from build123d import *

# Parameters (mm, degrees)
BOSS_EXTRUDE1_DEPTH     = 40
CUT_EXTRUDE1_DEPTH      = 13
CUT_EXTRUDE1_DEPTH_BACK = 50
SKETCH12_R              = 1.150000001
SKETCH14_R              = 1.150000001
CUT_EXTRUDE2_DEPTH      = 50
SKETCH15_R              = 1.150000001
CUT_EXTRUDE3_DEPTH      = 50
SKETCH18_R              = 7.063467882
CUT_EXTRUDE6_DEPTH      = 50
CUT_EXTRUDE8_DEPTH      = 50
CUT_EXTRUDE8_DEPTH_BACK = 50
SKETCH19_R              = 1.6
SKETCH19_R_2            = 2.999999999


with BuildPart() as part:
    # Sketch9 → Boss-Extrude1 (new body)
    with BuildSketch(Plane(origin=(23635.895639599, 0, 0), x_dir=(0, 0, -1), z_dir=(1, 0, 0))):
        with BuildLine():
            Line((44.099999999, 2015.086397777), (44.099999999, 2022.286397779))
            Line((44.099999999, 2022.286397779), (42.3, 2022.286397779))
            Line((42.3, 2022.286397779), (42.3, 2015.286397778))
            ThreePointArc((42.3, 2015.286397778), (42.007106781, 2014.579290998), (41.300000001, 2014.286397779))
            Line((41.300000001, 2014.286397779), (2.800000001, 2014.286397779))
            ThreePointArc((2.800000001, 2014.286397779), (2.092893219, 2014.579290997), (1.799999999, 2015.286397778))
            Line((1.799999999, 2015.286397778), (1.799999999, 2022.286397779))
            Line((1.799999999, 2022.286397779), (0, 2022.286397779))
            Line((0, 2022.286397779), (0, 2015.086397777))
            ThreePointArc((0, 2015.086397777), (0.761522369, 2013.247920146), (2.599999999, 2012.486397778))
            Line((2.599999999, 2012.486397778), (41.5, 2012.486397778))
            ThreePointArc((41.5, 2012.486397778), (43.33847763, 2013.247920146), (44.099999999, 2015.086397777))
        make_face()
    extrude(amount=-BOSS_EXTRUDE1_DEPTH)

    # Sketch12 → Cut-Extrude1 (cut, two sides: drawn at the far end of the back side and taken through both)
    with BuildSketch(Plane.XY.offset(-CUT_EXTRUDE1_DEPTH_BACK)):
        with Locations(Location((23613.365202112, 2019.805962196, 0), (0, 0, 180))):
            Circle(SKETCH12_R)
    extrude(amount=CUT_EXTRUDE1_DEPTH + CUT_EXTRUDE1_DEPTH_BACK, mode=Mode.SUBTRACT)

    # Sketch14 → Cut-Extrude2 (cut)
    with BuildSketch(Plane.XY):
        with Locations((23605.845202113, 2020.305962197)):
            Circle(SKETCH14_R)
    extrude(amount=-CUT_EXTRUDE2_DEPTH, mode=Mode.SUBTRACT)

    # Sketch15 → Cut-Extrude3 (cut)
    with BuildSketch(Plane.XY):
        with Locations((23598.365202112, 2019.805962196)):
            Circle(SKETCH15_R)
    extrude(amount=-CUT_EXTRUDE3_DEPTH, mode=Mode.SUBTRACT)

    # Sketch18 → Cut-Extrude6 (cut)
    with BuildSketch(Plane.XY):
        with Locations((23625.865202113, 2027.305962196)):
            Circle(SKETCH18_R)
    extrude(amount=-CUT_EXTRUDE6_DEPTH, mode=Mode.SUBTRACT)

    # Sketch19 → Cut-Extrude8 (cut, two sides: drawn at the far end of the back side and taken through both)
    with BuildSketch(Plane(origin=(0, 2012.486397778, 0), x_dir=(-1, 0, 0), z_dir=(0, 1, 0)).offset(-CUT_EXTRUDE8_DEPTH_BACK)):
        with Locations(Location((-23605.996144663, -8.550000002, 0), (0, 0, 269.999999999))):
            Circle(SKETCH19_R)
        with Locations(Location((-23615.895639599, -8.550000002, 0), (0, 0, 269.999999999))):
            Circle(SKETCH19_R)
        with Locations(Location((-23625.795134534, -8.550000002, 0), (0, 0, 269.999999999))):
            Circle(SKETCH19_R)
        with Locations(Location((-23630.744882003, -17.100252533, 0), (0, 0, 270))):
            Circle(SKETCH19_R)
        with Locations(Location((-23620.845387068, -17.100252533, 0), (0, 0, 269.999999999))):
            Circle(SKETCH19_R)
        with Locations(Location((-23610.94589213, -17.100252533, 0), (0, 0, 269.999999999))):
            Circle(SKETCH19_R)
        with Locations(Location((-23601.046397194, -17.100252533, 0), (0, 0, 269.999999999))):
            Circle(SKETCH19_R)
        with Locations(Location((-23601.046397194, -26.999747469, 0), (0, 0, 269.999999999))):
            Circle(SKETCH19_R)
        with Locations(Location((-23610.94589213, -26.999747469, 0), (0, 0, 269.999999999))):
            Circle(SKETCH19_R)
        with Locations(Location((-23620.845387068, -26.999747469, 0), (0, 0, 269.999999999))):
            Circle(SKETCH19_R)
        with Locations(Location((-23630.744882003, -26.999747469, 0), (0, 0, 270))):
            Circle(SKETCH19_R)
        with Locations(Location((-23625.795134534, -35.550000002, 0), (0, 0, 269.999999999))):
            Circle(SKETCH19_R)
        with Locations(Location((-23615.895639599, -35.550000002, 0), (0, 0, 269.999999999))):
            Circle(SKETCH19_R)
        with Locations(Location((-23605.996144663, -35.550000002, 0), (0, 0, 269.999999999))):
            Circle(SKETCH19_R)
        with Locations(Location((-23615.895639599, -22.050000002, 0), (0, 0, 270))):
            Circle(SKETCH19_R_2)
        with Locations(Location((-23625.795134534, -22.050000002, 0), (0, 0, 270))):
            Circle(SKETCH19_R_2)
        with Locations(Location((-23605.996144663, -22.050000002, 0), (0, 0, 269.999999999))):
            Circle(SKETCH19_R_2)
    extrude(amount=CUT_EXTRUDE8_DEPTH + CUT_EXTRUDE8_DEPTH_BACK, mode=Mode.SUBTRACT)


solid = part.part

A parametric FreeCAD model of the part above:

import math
import FreeCAD as App
import Part
import Sketcher
from FreeCAD import Vector
Q = App.Units.Quantity

doc = App.newDocument("Part")
body = doc.addObject("PartDesign::Body", "Body")

# Sketch on YZ plane
sketch1 = doc.addObject("Sketcher::SketchObject", "Sketch")
body.addObject(sketch1)
sketch1.AttachmentSupport = (doc.YZ_Plane, [""])
sketch1.MapMode = "FlatFace"
sketch1.AttachmentOffset = App.Placement(Vector(0, 0, 23635.89564), App.Rotation())
sketch1.addGeometry([
    Part.LineSegment(Vector(2015.1, -44.1, 0), Vector(2022.3, -44.1, 0)),  # 0
    Part.LineSegment(Vector(2022.3, -44.1, 0), Vector(2022.3, -42.3, 0)),  # 1
    Part.LineSegment(Vector(2022.3, -42.3, 0), Vector(2015.3, -42.3, 0)),  # 2
    Part.ArcOfCircle(Part.Circle(Vector(2015.3, -41.3, 0), Vector(0, 0, 1), 1), math.radians(-180), math.radians(-90)),  # 3
    Part.LineSegment(Vector(2014.3, -41.3, 0), Vector(2014.3, -2.8, 0)),  # 4
    Part.ArcOfCircle(Part.Circle(Vector(2015.3, -2.8, 0), Vector(0, 0, 1), 1), math.radians(90), math.radians(180)),  # 5
    Part.LineSegment(Vector(2015.3, -1.8, 0), Vector(2022.3, -1.8, 0)),  # 6
    Part.LineSegment(Vector(2022.3, -1.8, 0), Vector(2022.3, 0, 0)),  # 7
    Part.LineSegment(Vector(2022.3, 0, 0), Vector(2015.1, 0, 0)),  # 8
    Part.ArcOfCircle(Part.Circle(Vector(2015.1, -2.6, 0), Vector(0, 0, 1), 2.6), math.radians(90), math.radians(180)),  # 9
    Part.LineSegment(Vector(2012.5, -2.6, 0), Vector(2012.5, -41.5, 0)),  # 10
    Part.ArcOfCircle(Part.Circle(Vector(2015.1, -41.5, 0), Vector(0, 0, 1), 2.6), math.radians(180), math.radians(270)),  # 11
], False)
sketch1.addConstraint([
    Sketcher.Constraint("Coincident", 0, 2, 1, 1),
    Sketcher.Constraint("Coincident", 1, 2, 2, 1),
    Sketcher.Constraint("Tangent", 2, 2, 3, 2),
    Sketcher.Constraint("Tangent", 3, 1, 4, 1),
    Sketcher.Constraint("Tangent", 4, 2, 5, 2),
    Sketcher.Constraint("Tangent", 5, 1, 6, 1),
    Sketcher.Constraint("Coincident", 6, 2, 7, 1),
    Sketcher.Constraint("Coincident", 7, 2, 8, 1),
    Sketcher.Constraint("Tangent", 8, 2, 9, 1),
    Sketcher.Constraint("Tangent", 9, 2, 10, 1),
    Sketcher.Constraint("Tangent", 10, 2, 11, 1),
    Sketcher.Constraint("Tangent", 11, 2, 0, 1),
    Sketcher.Constraint("Horizontal", 0),
    Sketcher.Constraint("Vertical", 1),
    Sketcher.Constraint("Horizontal", 2),
    Sketcher.Constraint("Vertical", 4),
    Sketcher.Constraint("Horizontal", 6),
    Sketcher.Constraint("Vertical", 7),
    Sketcher.Constraint("Horizontal", 8),
    Sketcher.Constraint("Vertical", 10),
    Sketcher.Constraint("Equal", 3, 5),
    Sketcher.Constraint("Equal", 9, 11),
    Sketcher.Constraint("PointOnObject", 7, 2, -1),
    Sketcher.Constraint("Vertical", 1, 2, 6, 2),
    Sketcher.Constraint("Equal", 1, 7),
    Sketcher.Constraint("Radius", 3, Q("1 mm")),
    Sketcher.Constraint("Radius", 9, Q("2.6 mm")),
    Sketcher.Constraint("DistanceX", 2, 2, 2, 1, Q("7 mm")),
    Sketcher.Constraint("DistanceX", 0, 1, 0, 2, Q("7.2 mm")),
    Sketcher.Constraint("DistanceY", 1, 1, 1, 2, Q("1.8 mm")),
    Sketcher.Constraint("DistanceY", 4, 1, 4, 2, Q("38.5 mm")),
    Sketcher.Constraint("DistanceX", -1, 1, 3, 3, Q("2015.286398 mm")),
])
pad1 = doc.addObject("PartDesign::Pad", "Pad")
body.addObject(pad1)
pad1.Profile = sketch1
pad1.Length = 40
pad1.Reversed = True

# Sketch on XY plane
sketch2 = doc.addObject("Sketcher::SketchObject", "Sketch001")
body.addObject(sketch2)
sketch2.AttachmentSupport = (doc.XY_Plane, [""])
sketch2.MapMode = "FlatFace"
sketch2.addGeometry(Part.Circle(Vector(23613.4, 2019.8, 0), Vector(0, 0, 1), 1.2), False)
sketch2.addConstraint([
    Sketcher.Constraint("Diameter", 0, Q("2.3 mm")),
    Sketcher.Constraint("DistanceX", -1, 1, 0, 3, Q("23613.365202 mm")),
    Sketcher.Constraint("DistanceY", -1, 1, 0, 3, Q("2019.805962 mm")),
])
pocket1 = doc.addObject("PartDesign::Pocket", "Pocket")
body.addObject(pocket1)
pocket1.Profile = sketch2
pocket1.Type = "ThroughAll"
pocket1.Midplane = True

# Sketch on XY plane
sketch3 = doc.addObject("Sketcher::SketchObject", "Sketch002")
body.addObject(sketch3)
sketch3.AttachmentSupport = (doc.XY_Plane, [""])
sketch3.MapMode = "FlatFace"
sketch3.addGeometry(Part.Circle(Vector(23605.8, 2020.3, 0), Vector(0, 0, 1), 1.2), False)
sketch3.addConstraint([
    Sketcher.Constraint("Diameter", 0, Q("2.3 mm")),
    Sketcher.Constraint("DistanceX", -1, 1, 0, 3, Q("23605.845202 mm")),
    Sketcher.Constraint("DistanceY", -1, 1, 0, 3, Q("2020.305962 mm")),
])
pocket2 = doc.addObject("PartDesign::Pocket", "Pocket001")
body.addObject(pocket2)
pocket2.Profile = sketch3
pocket2.Length = 50

# Sketch on XY plane
sketch4 = doc.addObject("Sketcher::SketchObject", "Sketch003")
body.addObject(sketch4)
sketch4.AttachmentSupport = (doc.XY_Plane, [""])
sketch4.MapMode = "FlatFace"
sketch4.addGeometry(Part.Circle(Vector(23598.4, 2019.8, 0), Vector(0, 0, 1), 1.2), False)
sketch4.addConstraint([
    Sketcher.Constraint("Diameter", 0, Q("2.3 mm")),
    Sketcher.Constraint("DistanceX", -1, 1, 0, 3, Q("23598.365202 mm")),
    Sketcher.Constraint("DistanceY", -1, 1, 0, 3, Q("2019.805962 mm")),
])
pocket3 = doc.addObject("PartDesign::Pocket", "Pocket002")
body.addObject(pocket3)
pocket3.Profile = sketch4
pocket3.Length = 50

# Sketch on XY plane
sketch5 = doc.addObject("Sketcher::SketchObject", "Sketch004")
body.addObject(sketch5)
sketch5.AttachmentSupport = (doc.XY_Plane, [""])
sketch5.MapMode = "FlatFace"
sketch5.addGeometry(Part.Circle(Vector(23626, 2027, 0), Vector(0, 0, 1), 7), False)
sketch5.addConstraint([
    Sketcher.Constraint("Diameter", 0, Q("14.126936 mm")),
    Sketcher.Constraint("DistanceX", -1, 1, 0, 3, Q("23625.865202 mm")),
    Sketcher.Constraint("DistanceY", -1, 1, 0, 3, Q("2027.305962 mm")),
])
pocket4 = doc.addObject("PartDesign::Pocket", "Pocket003")
body.addObject(pocket4)
pocket4.Profile = sketch5
pocket4.Length = 50

# Sketch on XZ plane
sketch6 = doc.addObject("Sketcher::SketchObject", "Sketch005")
body.addObject(sketch6)
sketch6.AttachmentSupport = (doc.XZ_Plane, [""])
sketch6.MapMode = "FlatFace"
sketch6.AttachmentOffset = App.Placement(Vector(0, 0, -2012.486398), App.Rotation())
sketch6.addGeometry([
    Part.Circle(Vector(23606, -8.6, 0), Vector(0, 0, 1), 1.6),  # 0
    Part.Circle(Vector(23615.9, -8.6, 0), Vector(0, 0, 1), 1.6),  # 1
    Part.Circle(Vector(23625.8, -8.6, 0), Vector(0, 0, 1), 1.6),  # 2
    Part.Circle(Vector(23630.7, -17.1, 0), Vector(0, 0, 1), 1.6),  # 3
    Part.Circle(Vector(23620.8, -17.1, 0), Vector(0, 0, 1), 1.6),  # 4
    Part.Circle(Vector(23610.9, -17.1, 0), Vector(0, 0, 1), 1.6),  # 5
    Part.Circle(Vector(23601, -17.1, 0), Vector(0, 0, 1), 1.6),  # 6
    Part.Circle(Vector(23601, -27, 0), Vector(0, 0, 1), 1.6),  # 7
    Part.Circle(Vector(23610.9, -27, 0), Vector(0, 0, 1), 1.6),  # 8
    Part.Circle(Vector(23620.8, -27, 0), Vector(0, 0, 1), 1.6),  # 9
    Part.Circle(Vector(23630.7, -27, 0), Vector(0, 0, 1), 1.6),  # 10
    Part.Circle(Vector(23625.8, -35.6, 0), Vector(0, 0, 1), 1.6),  # 11
    Part.Circle(Vector(23615.9, -35.6, 0), Vector(0, 0, 1), 1.6),  # 12
    Part.Circle(Vector(23606, -35.6, 0), Vector(0, 0, 1), 1.6),  # 13
    Part.Circle(Vector(23615.9, -22.1, 0), Vector(0, 0, 1), 3),  # 14
    Part.Circle(Vector(23625.8, -22.1, 0), Vector(0, 0, 1), 3),  # 15
    Part.Circle(Vector(23606, -22.1, 0), Vector(0, 0, 1), 3),  # 16
], False)
sketch6.addConstraint([
    Sketcher.Constraint("Equal", 0, 1),
    Sketcher.Constraint("Equal", 1, 2),
    Sketcher.Constraint("Equal", 2, 3),
    Sketcher.Constraint("Equal", 3, 4),
    Sketcher.Constraint("Equal", 4, 5),
    Sketcher.Constraint("Equal", 5, 6),
    Sketcher.Constraint("Equal", 6, 7),
    Sketcher.Constraint("Equal", 7, 8),
    Sketcher.Constraint("Equal", 8, 9),
    Sketcher.Constraint("Equal", 9, 10),
    Sketcher.Constraint("Equal", 10, 11),
    Sketcher.Constraint("Equal", 11, 12),
    Sketcher.Constraint("Equal", 12, 13),
    Sketcher.Constraint("Equal", 14, 15),
    Sketcher.Constraint("Equal", 15, 16),
    Sketcher.Constraint("Horizontal", 0, 3, 1, 3),
    Sketcher.Constraint("Horizontal", 1, 3, 2, 3),
    Sketcher.Constraint("Horizontal", 3, 3, 4, 3),
    Sketcher.Constraint("Horizontal", 4, 3, 5, 3),
    Sketcher.Constraint("Horizontal", 5, 3, 6, 3),
    Sketcher.Constraint("Horizontal", 7, 3, 8, 3),
    Sketcher.Constraint("Horizontal", 8, 3, 9, 3),
    Sketcher.Constraint("Horizontal", 9, 3, 10, 3),
    Sketcher.Constraint("Horizontal", 11, 3, 12, 3),
    Sketcher.Constraint("Horizontal", 12, 3, 13, 3),
    Sketcher.Constraint("Horizontal", 14, 3, 15, 3),
    Sketcher.Constraint("Horizontal", 15, 3, 16, 3),
    Sketcher.Constraint("Vertical", 6, 3, 7, 3),
    Sketcher.Constraint("Vertical", 5, 3, 8, 3),
    Sketcher.Constraint("Vertical", 4, 3, 9, 3),
    Sketcher.Constraint("Vertical", 3, 3, 10, 3),
    Sketcher.Constraint("Vertical", 2, 3, 11, 3),
    Sketcher.Constraint("Vertical", 1, 3, 12, 3),
    Sketcher.Constraint("Vertical", 0, 3, 13, 3),
    Sketcher.Constraint("Vertical", 12, 3, 14, 3),
    Sketcher.Constraint("Vertical", 11, 3, 15, 3),
    Sketcher.Constraint("Vertical", 13, 3, 16, 3),
    Sketcher.Constraint("Diameter", 14, Q("6 mm")),
    Sketcher.Constraint("Diameter", 0, Q("3.2 mm")),
    Sketcher.Constraint("DistanceY", 12, 3, 14, 3, Q("13.5 mm")),
    Sketcher.Constraint("DistanceY", 0, 3, -1, 1, Q("8.55 mm")),
    Sketcher.Constraint("DistanceY", 11, 3, -1, 1, Q("35.55 mm")),
    Sketcher.Constraint("DistanceX", -1, 1, 1, 3, Q("23615.89564 mm")),
    Sketcher.Constraint("DistanceX", 0, 3, 2, 3, Q("19.79899 mm")),
    Sketcher.Constraint("DistanceX", 5, 3, 3, 3, Q("19.79899 mm")),
    Sketcher.Constraint("DistanceX", 6, 3, 4, 3, Q("19.79899 mm")),
    Sketcher.Constraint("DistanceX", -1, 1, 0, 3, Q("23605.996145 mm")),
    Sketcher.Constraint("DistanceX", -1, 1, 3, 3, Q("23630.744882 mm")),
    Sketcher.Constraint("DistanceY", 3, 3, -1, 1, Q("17.100253 mm")),
    Sketcher.Constraint("DistanceX", -1, 1, 4, 3, Q("23620.845387 mm")),
    Sketcher.Constraint("DistanceY", 7, 3, -1, 1, Q("26.999747 mm")),
])
pocket5 = doc.addObject("PartDesign::Pocket", "Pocket004")
body.addObject(pocket5)
pocket5.Profile = sketch6
pocket5.Type = "ThroughAll"
pocket5.Midplane = True

doc.recompute()
